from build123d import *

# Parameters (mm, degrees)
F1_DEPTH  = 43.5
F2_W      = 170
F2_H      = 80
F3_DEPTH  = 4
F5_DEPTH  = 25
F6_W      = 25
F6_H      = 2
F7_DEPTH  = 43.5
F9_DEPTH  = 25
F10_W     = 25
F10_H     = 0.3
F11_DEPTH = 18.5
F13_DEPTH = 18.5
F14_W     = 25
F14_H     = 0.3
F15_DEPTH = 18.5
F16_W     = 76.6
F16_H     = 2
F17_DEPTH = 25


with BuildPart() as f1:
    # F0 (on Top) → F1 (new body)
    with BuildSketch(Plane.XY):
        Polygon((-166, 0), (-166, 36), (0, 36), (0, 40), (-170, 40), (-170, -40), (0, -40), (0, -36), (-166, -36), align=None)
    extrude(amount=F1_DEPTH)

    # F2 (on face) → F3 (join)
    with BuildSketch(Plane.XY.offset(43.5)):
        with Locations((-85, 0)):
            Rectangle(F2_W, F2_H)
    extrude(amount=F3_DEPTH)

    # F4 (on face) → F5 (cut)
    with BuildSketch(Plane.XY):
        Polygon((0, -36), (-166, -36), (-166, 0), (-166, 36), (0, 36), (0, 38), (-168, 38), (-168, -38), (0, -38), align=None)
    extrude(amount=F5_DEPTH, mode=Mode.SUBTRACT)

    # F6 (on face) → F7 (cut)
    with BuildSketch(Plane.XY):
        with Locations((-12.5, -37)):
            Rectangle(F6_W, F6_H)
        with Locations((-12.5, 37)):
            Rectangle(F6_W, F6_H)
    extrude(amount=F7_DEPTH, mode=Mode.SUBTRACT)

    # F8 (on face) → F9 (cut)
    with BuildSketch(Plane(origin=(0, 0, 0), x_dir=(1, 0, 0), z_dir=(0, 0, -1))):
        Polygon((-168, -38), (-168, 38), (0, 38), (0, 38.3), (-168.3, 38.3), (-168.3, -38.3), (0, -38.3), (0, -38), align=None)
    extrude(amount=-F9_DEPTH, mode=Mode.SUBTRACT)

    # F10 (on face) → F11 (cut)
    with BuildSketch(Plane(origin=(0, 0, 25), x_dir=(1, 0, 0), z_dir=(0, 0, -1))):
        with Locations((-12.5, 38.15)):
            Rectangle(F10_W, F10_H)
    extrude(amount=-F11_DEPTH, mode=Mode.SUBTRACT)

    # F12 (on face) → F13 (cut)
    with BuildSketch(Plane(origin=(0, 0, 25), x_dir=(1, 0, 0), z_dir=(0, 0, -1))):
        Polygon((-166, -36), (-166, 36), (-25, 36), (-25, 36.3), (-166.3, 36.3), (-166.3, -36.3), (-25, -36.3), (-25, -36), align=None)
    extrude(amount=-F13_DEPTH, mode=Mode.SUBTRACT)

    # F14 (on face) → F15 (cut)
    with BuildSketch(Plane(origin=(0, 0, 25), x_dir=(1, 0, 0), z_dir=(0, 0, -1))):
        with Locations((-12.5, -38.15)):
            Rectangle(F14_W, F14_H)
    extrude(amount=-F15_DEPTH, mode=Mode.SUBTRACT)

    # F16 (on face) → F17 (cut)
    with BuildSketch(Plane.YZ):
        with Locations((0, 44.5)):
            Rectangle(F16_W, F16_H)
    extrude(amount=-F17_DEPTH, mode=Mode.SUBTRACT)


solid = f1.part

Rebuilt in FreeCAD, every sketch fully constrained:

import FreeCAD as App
import Part
import Sketcher

V = App.Vector
Q = App.Units.Quantity

doc = App.newDocument("Part")
body = doc.addObject("PartDesign::Body", "Body")

# Sketch on XY plane
sketch1 = body.newObject("Sketcher::SketchObject", "Sketch")
sketch1.AttachmentSupport = (doc.getObject("XY_Plane"), [""])
sketch1.MapMode = "FlatFace"
sketch1.addGeometry([
    Part.LineSegment(V(-166, 36, 0), V(0, 36, 0)),  # 0
    Part.LineSegment(V(0, 36, 0), V(0, 40, 0)),  # 1
    Part.LineSegment(V(0, 40, 0), V(-170, 40, 0)),  # 2
    Part.LineSegment(V(-170, 40, 0), V(-170, -40, 0)),  # 3
    Part.LineSegment(V(-170, -40, 0), V(0, -40, 0)),  # 4
    Part.LineSegment(V(0, -40, 0), V(0, -36, 0)),  # 5
    Part.LineSegment(V(0, -36, 0), V(-166, -36, 0)),  # 6
    Part.LineSegment(V(-166, -36, 0), V(-166, 36, 0)),  # 7
], False)
sketch1.addConstraint([
    Sketcher.Constraint("Coincident", 0, 2, 1, 1),
    Sketcher.Constraint("Coincident", 1, 2, 2, 1),
    Sketcher.Constraint("Coincident", 2, 2, 3, 1),
    Sketcher.Constraint("Coincident", 3, 2, 4, 1),
    Sketcher.Constraint("Coincident", 4, 2, 5, 1),
    Sketcher.Constraint("Coincident", 5, 2, 6, 1),
    Sketcher.Constraint("Coincident", 6, 2, 7, 1),
    Sketcher.Constraint("Coincident", 7, 2, 0, 1),
    Sketcher.Constraint("Horizontal", 0),
    Sketcher.Constraint("Vertical", 1),
    Sketcher.Constraint("Horizontal", 2),
    Sketcher.Constraint("Vertical", 3),
    Sketcher.Constraint("Horizontal", 4),
    Sketcher.Constraint("Vertical", 5),
    Sketcher.Constraint("Horizontal", 6),
    Sketcher.Constraint("Vertical", 7),
    Sketcher.Constraint("Symmetric", 1, 2, 4, 2, -1, 1),
    Sketcher.Constraint("Symmetric", 0, 2, 5, 2, -1),
    Sketcher.Constraint("DistanceX", 0, 1, 0, 2, Q("166 mm")),
    Sketcher.Constraint("DistanceX", 2, 2, 2, 1, Q("170 mm")),
    Sketcher.Constraint("DistanceY", 1, 1, 1, 2, Q("4 mm")),
    Sketcher.Constraint("DistanceY", 3, 2, 3, 1, Q("80 mm")),
])
pad1 = body.newObject("PartDesign::Pad", "Pad")
pad1.Profile = sketch1
pad1.Length = 43.5

# Sketch on XY plane
sketch2 = body.newObject("Sketcher::SketchObject", "Sketch001")
sketch2.AttachmentSupport = (doc.getObject("XY_Plane"), [""])
sketch2.MapMode = "FlatFace"
sketch2.AttachmentOffset = App.Placement(V(0, 0, 43.5), App.Rotation())
sketch2.addGeometry([
    Part.LineSegment(V(-170, 40, 0), V(-170, -40, 0)),
    Part.LineSegment(V(-170, -40, 0), V(0, -40, 0)),
    Part.LineSegment(V(0, -40, 0), V(0, 40, 0)),
    Part.LineSegment(V(0, 40, 0), V(-170, 40, 0)),
], False)
sketch2.addConstraint([
    Sketcher.Constraint("Coincident", 0, 2, 1, 1),
    Sketcher.Constraint("Coincident", 1, 2, 2, 1),
    Sketcher.Constraint("Coincident", 2, 2, 3, 1),
    Sketcher.Constraint("Coincident", 3, 2, 0, 1),
    Sketcher.Constraint("Vertical", 0),
    Sketcher.Constraint("Horizontal", 1),
    Sketcher.Constraint("Vertical", 2),
    Sketcher.Constraint("Horizontal", 3),
    Sketcher.Constraint("Symmetric", 1, 2, 2, 2, -1, 1),
    Sketcher.Constraint("DistanceX", 1, 1, 1, 2, Q("170 mm")),
    Sketcher.Constraint("DistanceY", 0, 2, 0, 1, Q("80 mm")),
])
pad2 = body.newObject("PartDesign::Pad", "Pad001")
pad2.Profile = sketch2
pad2.Length = 4

# Sketch on XY plane
sketch3 = body.newObject("Sketcher::SketchObject", "Sketch002")
sketch3.AttachmentSupport = (doc.getObject("XY_Plane"), [""])
sketch3.MapMode = "FlatFace"
sketch3.addGeometry([
    Part.LineSegment(V(0, -36, 0), V(-166, -36, 0)),  # 0
    Part.LineSegment(V(-166, -36, 0), V(-166, 36, 0)),  # 1
    Part.LineSegment(V(-166, 36, 0), V(0, 36, 0)),  # 2
    Part.LineSegment(V(0, 36, 0), V(0, 38, 0)),  # 3
    Part.LineSegment(V(0, 38, 0), V(-168, 38, 0)),  # 4
    Part.LineSegment(V(-168, 38, 0), V(-168, -38, 0)),  # 5
    Part.LineSegment(V(-168, -38, 0), V(0, -38, 0)),  # 6
    Part.LineSegment(V(0, -38, 0), V(0, -36, 0)),  # 7
], False)
sketch3.addConstraint([
    Sketcher.Constraint("Coincident", 0, 2, 1, 1),
    Sketcher.Constraint("Coincident", 1, 2, 2, 1),
    Sketcher.Constraint("Coincident", 2, 2, 3, 1),
    Sketcher.Constraint("Coincident", 3, 2, 4, 1),
    Sketcher.Constraint("Coincident", 4, 2, 5, 1),
    Sketcher.Constraint("Coincident", 5, 2, 6, 1),
    Sketcher.Constraint("Coincident", 6, 2, 7, 1),
    Sketcher.Constraint("Coincident", 7, 2, 0, 1),
    Sketcher.Constraint("Horizontal", 0),
    Sketcher.Constraint("Vertical", 1),
    Sketcher.Constraint("Horizontal", 2),
    Sketcher.Constraint("Vertical", 3),
    Sketcher.Constraint("Horizontal", 4),
    Sketcher.Constraint("Vertical", 5),
    Sketcher.Constraint("Horizontal", 6),
    Sketcher.Constraint("Vertical", 7),
    Sketcher.Constraint("Symmetric", 3, 2, 6, 2, -1, 1),
    Sketcher.Constraint("Symmetric", 2, 2, 7, 2, -1),
    Sketcher.Constraint("DistanceX", 0, 2, 0, 1, Q("166 mm")),
    Sketcher.Constraint("DistanceX", 4, 2, 4, 1, Q("168 mm")),
    Sketcher.Constraint("DistanceY", 1, 1, 1, 2, Q("72 mm")),
    Sketcher.Constraint("DistanceY", 3, 1, 3, 2, Q("2 mm")),
])
pocket1 = body.newObject("PartDesign::Pocket", "Pocket")
pocket1.Profile = sketch3
pocket1.Length = 25
pocket1.Reversed = True

# Sketch on XY plane
sketch4 = body.newObject("Sketcher::SketchObject", "Sketch003")
sketch4.AttachmentSupport = (doc.getObject("XY_Plane"), [""])
sketch4.MapMode = "FlatFace"
sketch4.addGeometry([
    Part.LineSegment(V(-25, -36, 0), V(-25, -38, 0)),  # 0
    Part.LineSegment(V(-25, -38, 0), V(0, -38, 0)),  # 1
    Part.LineSegment(V(0, -38, 0), V(0, -36, 0)),  # 2
    Part.LineSegment(V(0, -36, 0), V(-25, -36, 0)),  # 3
    Part.LineSegment(V(-25, 38, 0), V(-25, 36, 0)),  # 4
    Part.LineSegment(V(-25, 36, 0), V(0, 36, 0)),  # 5
    Part.LineSegment(V(0, 36, 0), V(0, 38, 0)),  # 6
    Part.LineSegment(V(0, 38, 0), V(-25, 38, 0)),  # 7
], False)
sketch4.addConstraint([
    Sketcher.Constraint("Coincident", 0, 2, 1, 1),
    Sketcher.Constraint("Coincident", 1, 2, 2, 1),
    Sketcher.Constraint("Coincident", 2, 2, 3, 1),
    Sketcher.Constraint("Coincident", 3, 2, 0, 1),
    Sketcher.Constraint("Coincident", 4, 2, 5, 1),
    Sketcher.Constraint("Coincident", 5, 2, 6, 1),
    Sketcher.Constraint("Coincident", 6, 2, 7, 1),
    Sketcher.Constraint("Coincident", 7, 2, 4, 1),
    Sketcher.Constraint("Vertical", 0),
    Sketcher.Constraint("Horizontal", 1),
    Sketcher.Constraint("Vertical", 2),
    Sketcher.Constraint("Horizontal", 3),
    Sketcher.Constraint("Vertical", 4),
    Sketcher.Constraint("Horizontal", 5),
    Sketcher.Constraint("Vertical", 6),
    Sketcher.Constraint("Horizontal", 7),
    Sketcher.Constraint("Symmetric", 2, 2, 5, 2, -1, 1),
    Sketcher.Constraint("Symmetric", 1, 2, 6, 2, -1),
    Sketcher.Constraint("Vertical", 3, 2, 4, 2),
    Sketcher.Constraint("DistanceX", 1, 1, 1, 2, Q("25 mm")),
    Sketcher.Constraint("DistanceY", 0, 2, 0, 1, Q("2 mm")),
    Sketcher.Constraint("DistanceY", 0, 2, -1, 1, Q("38 mm")),
])
pocket2 = body.newObject("PartDesign::Pocket", "Pocket001")
pocket2.Profile = sketch4
pocket2.Length = 43.5
pocket2.Reversed = True

# Sketch on XY plane
sketch5 = body.newObject("Sketcher::SketchObject", "Sketch004")
sketch5.AttachmentSupport = (doc.getObject("XY_Plane"), [""])
sketch5.MapMode = "FlatFace"
sketch5.addGeometry([
    Part.LineSegment(V(-168, 38, 0), V(-168, -38, 0)),  # 0
    Part.LineSegment(V(-168, -38, 0), V(0, -38, 0)),  # 1
    Part.LineSegment(V(0, -38, 0), V(0, -38.3, 0)),  # 2
    Part.LineSegment(V(0, -38.3, 0), V(-168.3, -38.3, 0)),  # 3
    Part.LineSegment(V(-168.3, -38.3, 0), V(-168.3, 38.3, 0)),  # 4
    Part.LineSegment(V(-168.3, 38.3, 0), V(0, 38.3, 0)),  # 5
    Part.LineSegment(V(0, 38.3, 0), V(0, 38, 0)),  # 6
    Part.LineSegment(V(0, 38, 0), V(-168, 38, 0)),  # 7
], False)
sketch5.addConstraint([
    Sketcher.Constraint("Coincident", 0, 2, 1, 1),
    Sketcher.Constraint("Coincident", 1, 2, 2, 1),
    Sketcher.Constraint("Coincident", 2, 2, 3, 1),
    Sketcher.Constraint("Coincident", 3, 2, 4, 1),
    Sketcher.Constraint("Coincident", 4, 2, 5, 1),
    Sketcher.Constraint("Coincident", 5, 2, 6, 1),
    Sketcher.Constraint("Coincident", 6, 2, 7, 1),
    Sketcher.Constraint("Coincident", 7, 2, 0, 1),
    Sketcher.Constraint("Vertical", 0),
    Sketcher.Constraint("Horizontal", 1),
    Sketcher.Constraint("Vertical", 2),
    Sketcher.Constraint("Horizontal", 3),
    Sketcher.Constraint("Vertical", 4),
    Sketcher.Constraint("Horizontal", 5),
    Sketcher.Constraint("Vertical", 6),
    Sketcher.Constraint("Horizontal", 7),
    Sketcher.Constraint("Symmetric", 2, 2, 5, 2, -1, 1),
    Sketcher.Constraint("Symmetric", 1, 2, 6, 2, -1),
    Sketcher.Constraint("DistanceX", 1, 1, 1, 2, Q("168 mm")),
    Sketcher.Constraint("DistanceY", 0, 2, 0, 1, Q("76 mm")),
    Sketcher.Constraint("DistanceX", 3, 2, 3, 1, Q("168.3 mm")),
    Sketcher.Constraint("DistanceY", 2, 2, 2, 1, Q("0.3 mm")),
])
pocket3 = body.newObject("PartDesign::Pocket", "Pocket002")
pocket3.Profile = sketch5
pocket3.Length = 25
pocket3.Reversed = True

# Sketch on XY plane
sketch6 = body.newObject("Sketcher::SketchObject", "Sketch005")
sketch6.AttachmentSupport = (doc.getObject("XY_Plane"), [""])
sketch6.MapMode = "FlatFace"
sketch6.AttachmentOffset = App.Placement(V(0, 0, 25), App.Rotation())
sketch6.addGeometry([
    Part.LineSegment(V(-25, -38.3, 0), V(-25, -38, 0)),
    Part.LineSegment(V(-25, -38, 0), V(0, -38, 0)),
    Part.LineSegment(V(0, -38, 0), V(0, -38.3, 0)),
    Part.LineSegment(V(0, -38.3, 0), V(-25, -38.3, 0)),
], False)
sketch6.addConstraint([
    Sketcher.Constraint("Coincident", 0, 2, 1, 1),
    Sketcher.Constraint("Coincident", 1, 2, 2, 1),
    Sketcher.Constraint("Coincident", 2, 2, 3, 1),
    Sketcher.Constraint("Coincident", 3, 2, 0, 1),
    Sketcher.Constraint("Vertical", 0),
    Sketcher.Constraint("Horizontal", 1),
    Sketcher.Constraint("Vertical", 2),
    Sketcher.Constraint("Horizontal", 3),
    Sketcher.Constraint("PointOnObject", 1, 2, -2),
    Sketcher.Constraint("DistanceX", 1, 1, 1, 2, Q("25 mm")),
    Sketcher.Constraint("DistanceY", 0, 1, 0, 2, Q("0.3 mm")),
    Sketcher.Constraint("DistanceY", 0, 2, -1, 1, Q("38 mm")),
])
pocket4 = body.newObject("PartDesign::Pocket", "Pocket003")
pocket4.Profile = sketch6
pocket4.Length = 18.5
pocket4.Reversed = True

# Sketch on XY plane
sketch7 = body.newObject("Sketcher::SketchObject", "Sketch006")
sketch7.AttachmentSupport = (doc.getObject("XY_Plane"), [""])
sketch7.MapMode = "FlatFace"
sketch7.AttachmentOffset = App.Placement(V(0, 0, 25), App.Rotation())
sketch7.addGeometry([
    Part.LineSegment(V(-166, 36, 0), V(-166, -36, 0)),  # 0
    Part.LineSegment(V(-166, -36, 0), V(-25, -36, 0)),  # 1
    Part.LineSegment(V(-25, -36, 0), V(-25, -36.3, 0)),  # 2
    Part.LineSegment(V(-25, -36.3, 0), V(-166.3, -36.3, 0)),  # 3
    Part.LineSegment(V(-166.3, -36.3, 0), V(-166.3, 36.3, 0)),  # 4
    Part.LineSegment(V(-166.3, 36.3, 0), V(-25, 36.3, 0)),  # 5
    Part.LineSegment(V(-25, 36.3, 0), V(-25, 36, 0)),  # 6
    Part.LineSegment(V(-25, 36, 0), V(-166, 36, 0)),  # 7
], False)
sketch7.addConstraint([
    Sketcher.Constraint("Coincident", 0, 2, 1, 1),
    Sketcher.Constraint("Coincident", 1, 2, 2, 1),
    Sketcher.Constraint("Coincident", 2, 2, 3, 1),
    Sketcher.Constraint("Coincident", 3, 2, 4, 1),
    Sketcher.Constraint("Coincident", 4, 2, 5, 1),
    Sketcher.Constraint("Coincident", 5, 2, 6, 1),
    Sketcher.Constraint("Coincident", 6, 2, 7, 1),
    Sketcher.Constraint("Coincident", 7, 2, 0, 1),
    Sketcher.Constraint("Vertical", 0),
    Sketcher.Constraint("Horizontal", 1),
    Sketcher.Constraint("Vertical", 2),
    Sketcher.Constraint("Horizontal", 3),
    Sketcher.Constraint("Vertical", 4),
    Sketcher.Constraint("Horizontal", 5),
    Sketcher.Constraint("Vertical", 6),
    Sketcher.Constraint("Horizontal", 7),
    Sketcher.Constraint("Symmetric", 2, 2, 5, 2, -1),
    Sketcher.Constraint("Equal", 2, 6),
    Sketcher.Constraint("DistanceX", 1, 1, 1, 2, Q("141 mm")),
    Sketcher.Constraint("DistanceY", 0, 2, 0, 1, Q("72 mm")),
    Sketcher.Constraint("DistanceX", 3, 2, 3, 1, Q("141.3 mm")),
    Sketcher.Constraint("DistanceY", 2, 2, 2, 1, Q("0.3 mm")),
    Sketcher.Constraint("DistanceX", 0, 2, -1, 1, Q("166 mm")),
])
pocket5 = body.newObject("PartDesign::Pocket", "Pocket004")
pocket5.Profile = sketch7
pocket5.Length = 18.5
pocket5.Reversed = True

# Sketch on XY plane
sketch8 = body.newObject("Sketcher::SketchObject", "Sketch007")
sketch8.AttachmentSupport = (doc.getObject("XY_Plane"), [""])
sketch8.MapMode = "FlatFace"
sketch8.AttachmentOffset = App.Placement(V(0, 0, 25), App.Rotation())
sketch8.addGeometry([
    Part.LineSegment(V(-25, 38, 0), V(-25, 38.3, 0)),
    Part.LineSegment(V(-25, 38.3, 0), V(0, 38.3, 0)),
    Part.LineSegment(V(0, 38.3, 0), V(0, 38, 0)),
    Part.LineSegment(V(0, 38, 0), V(-25, 38, 0)),
], False)
sketch8.addConstraint([
    Sketcher.Constraint("Coincident", 0, 2, 1, 1),
    Sketcher.Constraint("Coincident", 1, 2, 2, 1),
    Sketcher.Constraint("Coincident", 2, 2, 3, 1),
    Sketcher.Constraint("Coincident", 3, 2, 0, 1),
    Sketcher.Constraint("Vertical", 0),
    Sketcher.Constraint("Horizontal", 1),
    Sketcher.Constraint("Vertical", 2),
    Sketcher.Constraint("Horizontal", 3),
    Sketcher.Constraint("PointOnObject", 1, 2, -2),
    Sketcher.Constraint("DistanceX", 1, 1, 1, 2, Q("25 mm")),
    Sketcher.Constraint("DistanceY", 0, 1, 0, 2, Q("0.3 mm")),
    Sketcher.Constraint("DistanceY", -1, 1, 2, 2, Q("38 mm")),
])
pocket6 = body.newObject("PartDesign::Pocket", "Pocket005")
pocket6.Profile = sketch8
pocket6.Length = 18.5
pocket6.Reversed = True

# Sketch on YZ plane
sketch9 = body.newObject("Sketcher::SketchObject", "Sketch008")
sketch9.AttachmentSupport = (doc.getObject("YZ_Plane"), [""])
sketch9.MapMode = "FlatFace"
sketch9.addGeometry([
    Part.LineSegment(V(-38.3, 45.5, 0), V(-38.3, 43.5, 0)),
    Part.LineSegment(V(-38.3, 43.5, 0), V(38.3, 43.5, 0)),
    Part.LineSegment(V(38.3, 43.5, 0), V(38.3, 45.5, 0)),
    Part.LineSegment(V(38.3, 45.5, 0), V(-38.3, 45.5, 0)),
], False)
sketch9.addConstraint([
    Sketcher.Constraint("Coincident", 0, 2, 1, 1),
    Sketcher.Constraint("Coincident", 1, 2, 2, 1),
    Sketcher.Constraint("Coincident", 2, 2, 3, 1),
    Sketcher.Constraint("Coincident", 3, 2, 0, 1),
    Sketcher.Constraint("Vertical", 0),
    Sketcher.Constraint("Horizontal", 1),
    Sketcher.Constraint("Vertical", 2),
    Sketcher.Constraint("Horizontal", 3),
    Sketcher.Constraint("DistanceY", 0, 2, 0, 1, Q("2 mm")),
    Sketcher.Constraint("DistanceX", 1, 1, 1, 2, Q("76.6 mm")),
    Sketcher.Constraint("DistanceX", 0, 2, -1, 1, Q("38.3 mm")),
    Sketcher.Constraint("DistanceY", -1, 1, 0, 2, Q("43.5 mm")),
])
pocket7 = body.newObject("PartDesign::Pocket", "Pocket006")
pocket7.Profile = sketch9
pocket7.Length = 25

doc.recompute()
